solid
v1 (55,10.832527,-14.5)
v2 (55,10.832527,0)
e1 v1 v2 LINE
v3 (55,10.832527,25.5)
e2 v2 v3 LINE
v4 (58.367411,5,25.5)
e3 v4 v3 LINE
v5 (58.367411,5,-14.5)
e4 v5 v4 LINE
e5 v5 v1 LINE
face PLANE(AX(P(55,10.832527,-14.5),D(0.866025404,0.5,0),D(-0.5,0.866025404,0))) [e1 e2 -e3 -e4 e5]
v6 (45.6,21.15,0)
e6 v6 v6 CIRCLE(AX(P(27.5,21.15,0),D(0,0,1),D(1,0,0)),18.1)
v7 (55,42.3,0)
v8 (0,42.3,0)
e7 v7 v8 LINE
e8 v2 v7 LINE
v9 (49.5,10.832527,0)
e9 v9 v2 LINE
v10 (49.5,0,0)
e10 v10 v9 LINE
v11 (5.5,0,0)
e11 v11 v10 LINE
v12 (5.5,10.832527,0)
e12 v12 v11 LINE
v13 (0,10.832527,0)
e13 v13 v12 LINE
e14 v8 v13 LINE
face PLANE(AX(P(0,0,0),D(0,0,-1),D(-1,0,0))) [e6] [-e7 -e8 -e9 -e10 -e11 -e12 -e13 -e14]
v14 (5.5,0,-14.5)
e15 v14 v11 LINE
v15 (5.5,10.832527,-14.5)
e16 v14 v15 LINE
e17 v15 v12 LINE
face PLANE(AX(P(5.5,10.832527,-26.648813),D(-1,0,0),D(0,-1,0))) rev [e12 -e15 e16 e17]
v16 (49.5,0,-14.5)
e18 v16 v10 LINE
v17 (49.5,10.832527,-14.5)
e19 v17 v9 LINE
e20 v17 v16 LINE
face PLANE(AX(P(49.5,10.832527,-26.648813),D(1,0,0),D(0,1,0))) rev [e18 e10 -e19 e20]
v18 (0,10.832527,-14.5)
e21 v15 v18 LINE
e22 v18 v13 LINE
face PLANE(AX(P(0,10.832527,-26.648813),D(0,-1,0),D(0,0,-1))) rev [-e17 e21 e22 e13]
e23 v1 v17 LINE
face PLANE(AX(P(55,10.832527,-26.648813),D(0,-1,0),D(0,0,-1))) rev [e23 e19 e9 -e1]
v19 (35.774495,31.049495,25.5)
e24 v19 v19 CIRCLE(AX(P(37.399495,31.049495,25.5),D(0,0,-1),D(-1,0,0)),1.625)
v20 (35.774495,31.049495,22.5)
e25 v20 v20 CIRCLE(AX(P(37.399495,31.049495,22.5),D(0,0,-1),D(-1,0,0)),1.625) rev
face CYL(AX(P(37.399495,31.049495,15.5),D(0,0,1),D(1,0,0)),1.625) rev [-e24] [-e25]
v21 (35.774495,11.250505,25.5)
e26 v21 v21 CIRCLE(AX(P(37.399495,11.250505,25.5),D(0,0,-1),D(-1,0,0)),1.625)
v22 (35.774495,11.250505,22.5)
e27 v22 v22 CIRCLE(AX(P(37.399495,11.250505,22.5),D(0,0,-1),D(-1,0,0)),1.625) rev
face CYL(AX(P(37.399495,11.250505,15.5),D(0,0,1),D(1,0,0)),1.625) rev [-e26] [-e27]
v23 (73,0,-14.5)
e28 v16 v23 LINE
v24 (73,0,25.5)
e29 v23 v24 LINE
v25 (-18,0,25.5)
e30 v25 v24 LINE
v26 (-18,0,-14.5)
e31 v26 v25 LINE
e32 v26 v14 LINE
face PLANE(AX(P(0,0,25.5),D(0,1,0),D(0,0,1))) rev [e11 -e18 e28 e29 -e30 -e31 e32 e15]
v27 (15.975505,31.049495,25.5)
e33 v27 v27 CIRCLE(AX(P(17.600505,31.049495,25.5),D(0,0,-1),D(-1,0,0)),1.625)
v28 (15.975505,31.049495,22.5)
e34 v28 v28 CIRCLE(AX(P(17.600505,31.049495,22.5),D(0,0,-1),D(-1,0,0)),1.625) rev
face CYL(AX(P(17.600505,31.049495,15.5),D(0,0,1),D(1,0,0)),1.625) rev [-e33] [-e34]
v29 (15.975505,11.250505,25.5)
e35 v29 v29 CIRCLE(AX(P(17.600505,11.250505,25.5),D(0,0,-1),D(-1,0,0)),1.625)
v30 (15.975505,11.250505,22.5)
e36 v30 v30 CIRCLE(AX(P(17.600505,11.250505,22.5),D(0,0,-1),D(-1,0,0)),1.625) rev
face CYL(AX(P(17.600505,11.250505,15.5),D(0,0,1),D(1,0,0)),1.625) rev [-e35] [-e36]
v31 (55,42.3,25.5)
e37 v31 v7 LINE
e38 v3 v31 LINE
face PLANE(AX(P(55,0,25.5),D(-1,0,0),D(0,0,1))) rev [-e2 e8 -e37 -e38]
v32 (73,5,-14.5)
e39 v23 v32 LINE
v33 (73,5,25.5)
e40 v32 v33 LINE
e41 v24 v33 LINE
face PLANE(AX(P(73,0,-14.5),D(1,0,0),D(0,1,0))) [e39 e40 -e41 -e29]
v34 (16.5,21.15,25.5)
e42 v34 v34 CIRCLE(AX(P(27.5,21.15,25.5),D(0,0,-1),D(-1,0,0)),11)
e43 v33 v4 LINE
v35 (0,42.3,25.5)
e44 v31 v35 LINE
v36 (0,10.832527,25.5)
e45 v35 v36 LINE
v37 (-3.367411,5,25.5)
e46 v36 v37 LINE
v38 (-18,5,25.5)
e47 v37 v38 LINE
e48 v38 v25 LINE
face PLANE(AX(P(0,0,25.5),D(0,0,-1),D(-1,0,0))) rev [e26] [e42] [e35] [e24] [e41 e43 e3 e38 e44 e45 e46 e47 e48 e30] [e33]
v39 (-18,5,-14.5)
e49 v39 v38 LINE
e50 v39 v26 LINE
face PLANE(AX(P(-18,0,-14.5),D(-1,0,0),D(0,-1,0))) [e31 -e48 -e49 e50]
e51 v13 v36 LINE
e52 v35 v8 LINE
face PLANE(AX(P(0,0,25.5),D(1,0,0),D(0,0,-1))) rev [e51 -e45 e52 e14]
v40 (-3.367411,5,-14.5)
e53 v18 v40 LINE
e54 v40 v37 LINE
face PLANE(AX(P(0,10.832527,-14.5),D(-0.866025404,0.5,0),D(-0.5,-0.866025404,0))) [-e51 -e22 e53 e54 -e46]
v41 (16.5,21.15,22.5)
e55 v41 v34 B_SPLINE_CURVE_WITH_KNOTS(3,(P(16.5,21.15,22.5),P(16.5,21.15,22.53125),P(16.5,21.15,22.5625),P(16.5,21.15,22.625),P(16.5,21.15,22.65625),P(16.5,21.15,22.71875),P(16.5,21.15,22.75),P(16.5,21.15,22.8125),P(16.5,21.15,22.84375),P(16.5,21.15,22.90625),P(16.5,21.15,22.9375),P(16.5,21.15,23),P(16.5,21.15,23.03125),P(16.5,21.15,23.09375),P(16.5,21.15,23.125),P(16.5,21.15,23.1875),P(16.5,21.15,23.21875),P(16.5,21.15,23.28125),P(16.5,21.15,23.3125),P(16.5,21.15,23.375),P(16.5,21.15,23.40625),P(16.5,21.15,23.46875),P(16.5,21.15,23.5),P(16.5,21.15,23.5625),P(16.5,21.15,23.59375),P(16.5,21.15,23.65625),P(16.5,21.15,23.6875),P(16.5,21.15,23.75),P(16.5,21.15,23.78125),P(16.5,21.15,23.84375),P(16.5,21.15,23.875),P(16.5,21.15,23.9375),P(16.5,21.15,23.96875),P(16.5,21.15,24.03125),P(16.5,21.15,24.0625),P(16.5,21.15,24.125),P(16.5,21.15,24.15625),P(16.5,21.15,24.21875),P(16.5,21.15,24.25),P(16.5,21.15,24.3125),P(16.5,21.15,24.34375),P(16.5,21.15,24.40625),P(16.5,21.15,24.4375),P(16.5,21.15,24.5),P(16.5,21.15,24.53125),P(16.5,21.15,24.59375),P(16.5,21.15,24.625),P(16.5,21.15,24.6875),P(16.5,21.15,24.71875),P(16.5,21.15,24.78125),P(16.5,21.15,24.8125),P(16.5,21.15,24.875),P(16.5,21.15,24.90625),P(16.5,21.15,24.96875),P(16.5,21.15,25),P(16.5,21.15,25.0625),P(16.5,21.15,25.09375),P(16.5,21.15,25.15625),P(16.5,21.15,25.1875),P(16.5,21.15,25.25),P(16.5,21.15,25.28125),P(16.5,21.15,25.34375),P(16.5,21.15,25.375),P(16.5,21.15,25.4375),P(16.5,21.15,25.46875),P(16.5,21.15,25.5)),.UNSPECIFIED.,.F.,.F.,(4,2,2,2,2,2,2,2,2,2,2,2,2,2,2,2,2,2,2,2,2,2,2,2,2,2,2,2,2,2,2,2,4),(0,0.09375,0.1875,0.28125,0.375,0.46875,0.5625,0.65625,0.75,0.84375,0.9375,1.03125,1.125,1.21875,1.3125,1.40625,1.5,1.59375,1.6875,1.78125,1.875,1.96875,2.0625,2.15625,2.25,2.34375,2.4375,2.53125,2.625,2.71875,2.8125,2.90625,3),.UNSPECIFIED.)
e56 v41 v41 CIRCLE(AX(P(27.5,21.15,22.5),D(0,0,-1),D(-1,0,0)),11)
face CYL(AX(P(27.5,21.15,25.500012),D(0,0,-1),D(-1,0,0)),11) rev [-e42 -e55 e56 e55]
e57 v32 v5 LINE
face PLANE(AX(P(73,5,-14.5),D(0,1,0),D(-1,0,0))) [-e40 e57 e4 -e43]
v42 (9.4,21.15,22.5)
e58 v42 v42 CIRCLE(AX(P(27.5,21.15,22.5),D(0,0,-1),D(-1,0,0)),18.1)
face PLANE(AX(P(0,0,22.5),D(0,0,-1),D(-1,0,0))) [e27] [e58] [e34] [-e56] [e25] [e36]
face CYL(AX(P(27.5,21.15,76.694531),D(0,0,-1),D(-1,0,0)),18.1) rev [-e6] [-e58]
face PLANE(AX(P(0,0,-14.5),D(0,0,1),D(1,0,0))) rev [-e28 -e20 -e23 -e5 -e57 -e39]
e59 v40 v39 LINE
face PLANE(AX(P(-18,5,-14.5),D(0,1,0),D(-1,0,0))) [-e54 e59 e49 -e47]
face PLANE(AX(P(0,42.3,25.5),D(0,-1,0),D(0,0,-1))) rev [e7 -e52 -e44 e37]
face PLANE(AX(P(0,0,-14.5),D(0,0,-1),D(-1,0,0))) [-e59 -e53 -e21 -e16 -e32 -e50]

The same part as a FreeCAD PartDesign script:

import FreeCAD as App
import Part
import Sketcher

V = App.Vector
Q = App.Units.Quantity


def add_polygon(sketch, points):
    """Adds a closed chain of lines whose ends are joined by coincident constraints."""
    first, n = sketch.GeometryCount, len(points)
    for a, b in zip(points, points[1:] + points[:1]):
        sketch.addGeometry(Part.LineSegment(App.Vector(*a, 0), App.Vector(*b, 0)), False)
    for i in range(n):
        sketch.addConstraint(Sketcher.Constraint("Coincident", first + i, 2, first + (i + 1) % n, 1))

doc = App.newDocument("Part")
body = doc.addObject("PartDesign::Body", "Body")

# Sketch on XY plane
sketch1 = body.newObject("Sketcher::SketchObject", "Sketch")
sketch1.AttachmentSupport = (doc.getObject("XY_Plane"), [""])
sketch1.MapMode = "FlatFace"
add_polygon(sketch1, [(0, 42), (0, 0), (55, 0), (55, 42)])  # lines 0-3
sketch1.addConstraint(Sketcher.Constraint("Vertical", 0))
sketch1.addConstraint(Sketcher.Constraint("Horizontal", 1))
sketch1.addConstraint(Sketcher.Constraint("Vertical", 2))
sketch1.addConstraint(Sketcher.Constraint("Horizontal", 3))
sketch1.addConstraint(Sketcher.Constraint("Coincident", 0, 2, -1, 1))
sketch1.addConstraint(Sketcher.Constraint("DistanceX", 1, 1, 1, 2, 55.0))
sketch1.addConstraint(Sketcher.Constraint("DistanceY", 0, 2, 0, 1, 42.3))
pad1 = body.newObject("PartDesign::Pad", "Pad")
pad1.Profile = sketch1
pad1.Length = 25.5

# Sketch on XY plane
sketch2 = body.newObject("Sketcher::SketchObject", "Sketch001")
sketch2.AttachmentSupport = (doc.getObject("XY_Plane"), [""])
sketch2.MapMode = "FlatFace"
sketch2.addGeometry(Part.Circle(V(28, 21, 0), V(0, 0, 1), 18), False)
sketch2.addConstraint(Sketcher.Constraint("Diameter", 0, 36.2))
sketch2.addConstraint(Sketcher.Constraint("DistanceX", -1, 1, 0, 3, 27.5))
sketch2.addConstraint(Sketcher.Constraint("DistanceY", -1, 1, 0, 3, 21.15))
pocket1 = body.newObject("PartDesign::Pocket", "Pocket")
pocket1.Profile = sketch2
pocket1.Length = 22.5
pocket1.Reversed = True

# Sketch on XY plane
sketch3 = body.newObject("Sketcher::SketchObject", "Sketch002")
sketch3.AttachmentSupport = (doc.getObject("XY_Plane"), [""])
sketch3.MapMode = "FlatFace"
sketch3.AttachmentOffset = App.Placement(V(0, 0, 25.5), App.Rotation())
sketch3.addGeometry(Part.Circle(V(28, 21, 0), V(0, 0, 1), 11), False)
sketch3.addConstraint(Sketcher.Constraint("Diameter", 0, 22.0))
sketch3.addConstraint(Sketcher.Constraint("DistanceX", -1, 1, 0, 3, 27.5))
sketch3.addConstraint(Sketcher.Constraint("DistanceY", -1, 1, 0, 3, 21.15))
pocket2 = body.newObject("PartDesign::Pocket", "Pocket001")
pocket2.Profile = sketch3
pocket2.Type = "ThroughAll"
pocket2.Midplane = True

# Sketch on XY plane
sketch4 = body.newObject("Sketcher::SketchObject", "Sketch003")
sketch4.AttachmentSupport = (doc.getObject("XY_Plane"), [""])
sketch4.MapMode = "FlatFace"
sketch4.AttachmentOffset = App.Placement(V(0, 0, 25.5), App.Rotation())
sketch4.addGeometry(Part.Circle(V(37.4, 31, 0), V(0, 0, 1), 1.6), False)
sketch4.addGeometry(Part.Circle(V(17.6, 31, 0), V(0, 0, 1), 1.6), False)
sketch4.addGeometry(Part.Circle(V(17.6, 11.3, 0), V(0, 0, 1), 1.6), False)
sketch4.addGeometry(Part.Circle(V(37.4, 11.3, 0), V(0, 0, 1), 1.6), False)
sketch4.addConstraint(Sketcher.Constraint("Equal", 0, 1))
sketch4.addConstraint(Sketcher.Constraint("Equal", 1, 2))
sketch4.addConstraint(Sketcher.Constraint("Equal", 2, 3))
sketch4.addConstraint(Sketcher.Constraint("Horizontal", 0, 3, 1, 3))
sketch4.addConstraint(Sketcher.Constraint("Horizontal", 2, 3, 3, 3))
sketch4.addConstraint(Sketcher.Constraint("Vertical", 1, 3, 2, 3))
sketch4.addConstraint(Sketcher.Constraint("Vertical", 0, 3, 3, 3))
sketch4.addConstraint(Sketcher.Constraint("Diameter", 0, 3.25))
sketch4.addConstraint(Sketcher.Constraint("DistanceX", 1, 3, 0, 3, 19.79899))
sketch4.addConstraint(Sketcher.Constraint("DistanceY", 2, 3, 1, 3, 19.79899))
sketch4.addConstraint(Sketcher.Constraint("DistanceX", -1, 1, 0, 3, 37.399495))
sketch4.addConstraint(Sketcher.Constraint("DistanceY", -1, 1, 0, 3, 31.049495))
pocket3 = body.newObject("PartDesign::Pocket", "Pocket002")
pocket3.Profile = sketch4
pocket3.Length = 10

# Sketch on XY plane
sketch5 = body.newObject("Sketcher::SketchObject", "Sketch004")
sketch5.AttachmentSupport = (doc.getObject("XY_Plane"), [""])
sketch5.MapMode = "FlatFace"
sketch5.AttachmentOffset = App.Placement(V(0, 0, 25.5), App.Rotation())
add_polygon(sketch5, [(55, 0), (73, 0), (73, 5), (58, 5), (55, 11)])  # lines 0-4
add_polygon(sketch5, [(-18, 5), (-18, 0), (0, 0), (0, 11), (-3, 5)])  # lines 5-9
sketch5.addConstraint(Sketcher.Constraint("Horizontal", 0))
sketch5.addConstraint(Sketcher.Constraint("Vertical", 1))
sketch5.addConstraint(Sketcher.Constraint("Horizontal", 2))
sketch5.addConstraint(Sketcher.Constraint("Vertical", 4))
sketch5.addConstraint(Sketcher.Constraint("Vertical", 5))
sketch5.addConstraint(Sketcher.Constraint("Horizontal", 6))
sketch5.addConstraint(Sketcher.Constraint("Vertical", 7))
sketch5.addConstraint(Sketcher.Constraint("Horizontal", 9))
sketch5.addConstraint(Sketcher.Constraint("Coincident", 6, 2, -1, 1))
sketch5.addConstraint(Sketcher.Constraint("PointOnObject", 0, 2, -1))
sketch5.addConstraint(Sketcher.Constraint("Horizontal", 3, 2, 7, 2))
sketch5.addConstraint(Sketcher.Constraint("Horizontal", 2, 2, 8, 2))
sketch5.addConstraint(Sketcher.Constraint("Equal", 0, 6))
sketch5.addConstraint(Sketcher.Constraint("Equal", 2, 9))
sketch5.addConstraint(Sketcher.Constraint("DistanceX", 0, 1, 0, 2, 18.0))
sketch5.addConstraint(Sketcher.Constraint("DistanceY", 1, 1, 1, 2, 5.0))
sketch5.addConstraint(Sketcher.Constraint("Angle", 3, Q("120 deg")))
sketch5.addConstraint(Sketcher.Constraint("DistanceX", -1, 1, 0, 2, 73.0))
sketch5.addConstraint(Sketcher.Constraint("DistanceX", 2, 2, 2, 1, 14.632589))
pad2 = body.newObject("PartDesign::Pad", "Pad001")
pad2.Profile = sketch5
pad2.Length = 40
pad2.Reversed = True

# Sketch on XY plane
sketch6 = body.newObject("Sketcher::SketchObject", "Sketch005")
sketch6.AttachmentSupport = (doc.getObject("XY_Plane"), [""])
sketch6.MapMode = "FlatFace"
add_polygon(sketch6, [(6, 11), (6, 0), (0, 0), (0, 11)])  # lines 0-3
add_polygon(sketch6, [(55, 11), (55, 0), (50, 0), (50, 11)])  # lines 4-7
sketch6.addConstraint(Sketcher.Constraint("Vertical", 0))
sketch6.addConstraint(Sketcher.Constraint("Horizontal", 1))
sketch6.addConstraint(Sketcher.Constraint("Vertical", 2))
sketch6.addConstraint(Sketcher.Constraint("Horizontal", 3))
sketch6.addConstraint(Sketcher.Constraint("Vertical", 4))
sketch6.addConstraint(Sketcher.Constraint("Horizontal", 5))
sketch6.addConstraint(Sketcher.Constraint("Vertical", 6))
sketch6.addConstraint(Sketcher.Constraint("Horizontal", 7))
sketch6.addConstraint(Sketcher.Constraint("Coincident", 1, 2, -1, 1))
sketch6.addConstraint(Sketcher.Constraint("PointOnObject", 4, 2, -1))
sketch6.addConstraint(Sketcher.Constraint("Horizontal", 3, 2, 6, 2))
sketch6.addConstraint(Sketcher.Constraint("Equal", 3, 5))
sketch6.addConstraint(Sketcher.Constraint("DistanceX", 1, 2, 1, 1, 5.5))
sketch6.addConstraint(Sketcher.Constraint("DistanceX", -1, 1, 4, 2, 55.0))
sketch6.addConstraint(Sketcher.Constraint("DistanceY", 0, 2, 0, 1, 10.832527))
pad3 = body.newObject("PartDesign::Pad", "Pad002")
pad3.Profile = sketch6
pad3.Length = 14.5
pad3.Reversed = True

doc.recompute()
